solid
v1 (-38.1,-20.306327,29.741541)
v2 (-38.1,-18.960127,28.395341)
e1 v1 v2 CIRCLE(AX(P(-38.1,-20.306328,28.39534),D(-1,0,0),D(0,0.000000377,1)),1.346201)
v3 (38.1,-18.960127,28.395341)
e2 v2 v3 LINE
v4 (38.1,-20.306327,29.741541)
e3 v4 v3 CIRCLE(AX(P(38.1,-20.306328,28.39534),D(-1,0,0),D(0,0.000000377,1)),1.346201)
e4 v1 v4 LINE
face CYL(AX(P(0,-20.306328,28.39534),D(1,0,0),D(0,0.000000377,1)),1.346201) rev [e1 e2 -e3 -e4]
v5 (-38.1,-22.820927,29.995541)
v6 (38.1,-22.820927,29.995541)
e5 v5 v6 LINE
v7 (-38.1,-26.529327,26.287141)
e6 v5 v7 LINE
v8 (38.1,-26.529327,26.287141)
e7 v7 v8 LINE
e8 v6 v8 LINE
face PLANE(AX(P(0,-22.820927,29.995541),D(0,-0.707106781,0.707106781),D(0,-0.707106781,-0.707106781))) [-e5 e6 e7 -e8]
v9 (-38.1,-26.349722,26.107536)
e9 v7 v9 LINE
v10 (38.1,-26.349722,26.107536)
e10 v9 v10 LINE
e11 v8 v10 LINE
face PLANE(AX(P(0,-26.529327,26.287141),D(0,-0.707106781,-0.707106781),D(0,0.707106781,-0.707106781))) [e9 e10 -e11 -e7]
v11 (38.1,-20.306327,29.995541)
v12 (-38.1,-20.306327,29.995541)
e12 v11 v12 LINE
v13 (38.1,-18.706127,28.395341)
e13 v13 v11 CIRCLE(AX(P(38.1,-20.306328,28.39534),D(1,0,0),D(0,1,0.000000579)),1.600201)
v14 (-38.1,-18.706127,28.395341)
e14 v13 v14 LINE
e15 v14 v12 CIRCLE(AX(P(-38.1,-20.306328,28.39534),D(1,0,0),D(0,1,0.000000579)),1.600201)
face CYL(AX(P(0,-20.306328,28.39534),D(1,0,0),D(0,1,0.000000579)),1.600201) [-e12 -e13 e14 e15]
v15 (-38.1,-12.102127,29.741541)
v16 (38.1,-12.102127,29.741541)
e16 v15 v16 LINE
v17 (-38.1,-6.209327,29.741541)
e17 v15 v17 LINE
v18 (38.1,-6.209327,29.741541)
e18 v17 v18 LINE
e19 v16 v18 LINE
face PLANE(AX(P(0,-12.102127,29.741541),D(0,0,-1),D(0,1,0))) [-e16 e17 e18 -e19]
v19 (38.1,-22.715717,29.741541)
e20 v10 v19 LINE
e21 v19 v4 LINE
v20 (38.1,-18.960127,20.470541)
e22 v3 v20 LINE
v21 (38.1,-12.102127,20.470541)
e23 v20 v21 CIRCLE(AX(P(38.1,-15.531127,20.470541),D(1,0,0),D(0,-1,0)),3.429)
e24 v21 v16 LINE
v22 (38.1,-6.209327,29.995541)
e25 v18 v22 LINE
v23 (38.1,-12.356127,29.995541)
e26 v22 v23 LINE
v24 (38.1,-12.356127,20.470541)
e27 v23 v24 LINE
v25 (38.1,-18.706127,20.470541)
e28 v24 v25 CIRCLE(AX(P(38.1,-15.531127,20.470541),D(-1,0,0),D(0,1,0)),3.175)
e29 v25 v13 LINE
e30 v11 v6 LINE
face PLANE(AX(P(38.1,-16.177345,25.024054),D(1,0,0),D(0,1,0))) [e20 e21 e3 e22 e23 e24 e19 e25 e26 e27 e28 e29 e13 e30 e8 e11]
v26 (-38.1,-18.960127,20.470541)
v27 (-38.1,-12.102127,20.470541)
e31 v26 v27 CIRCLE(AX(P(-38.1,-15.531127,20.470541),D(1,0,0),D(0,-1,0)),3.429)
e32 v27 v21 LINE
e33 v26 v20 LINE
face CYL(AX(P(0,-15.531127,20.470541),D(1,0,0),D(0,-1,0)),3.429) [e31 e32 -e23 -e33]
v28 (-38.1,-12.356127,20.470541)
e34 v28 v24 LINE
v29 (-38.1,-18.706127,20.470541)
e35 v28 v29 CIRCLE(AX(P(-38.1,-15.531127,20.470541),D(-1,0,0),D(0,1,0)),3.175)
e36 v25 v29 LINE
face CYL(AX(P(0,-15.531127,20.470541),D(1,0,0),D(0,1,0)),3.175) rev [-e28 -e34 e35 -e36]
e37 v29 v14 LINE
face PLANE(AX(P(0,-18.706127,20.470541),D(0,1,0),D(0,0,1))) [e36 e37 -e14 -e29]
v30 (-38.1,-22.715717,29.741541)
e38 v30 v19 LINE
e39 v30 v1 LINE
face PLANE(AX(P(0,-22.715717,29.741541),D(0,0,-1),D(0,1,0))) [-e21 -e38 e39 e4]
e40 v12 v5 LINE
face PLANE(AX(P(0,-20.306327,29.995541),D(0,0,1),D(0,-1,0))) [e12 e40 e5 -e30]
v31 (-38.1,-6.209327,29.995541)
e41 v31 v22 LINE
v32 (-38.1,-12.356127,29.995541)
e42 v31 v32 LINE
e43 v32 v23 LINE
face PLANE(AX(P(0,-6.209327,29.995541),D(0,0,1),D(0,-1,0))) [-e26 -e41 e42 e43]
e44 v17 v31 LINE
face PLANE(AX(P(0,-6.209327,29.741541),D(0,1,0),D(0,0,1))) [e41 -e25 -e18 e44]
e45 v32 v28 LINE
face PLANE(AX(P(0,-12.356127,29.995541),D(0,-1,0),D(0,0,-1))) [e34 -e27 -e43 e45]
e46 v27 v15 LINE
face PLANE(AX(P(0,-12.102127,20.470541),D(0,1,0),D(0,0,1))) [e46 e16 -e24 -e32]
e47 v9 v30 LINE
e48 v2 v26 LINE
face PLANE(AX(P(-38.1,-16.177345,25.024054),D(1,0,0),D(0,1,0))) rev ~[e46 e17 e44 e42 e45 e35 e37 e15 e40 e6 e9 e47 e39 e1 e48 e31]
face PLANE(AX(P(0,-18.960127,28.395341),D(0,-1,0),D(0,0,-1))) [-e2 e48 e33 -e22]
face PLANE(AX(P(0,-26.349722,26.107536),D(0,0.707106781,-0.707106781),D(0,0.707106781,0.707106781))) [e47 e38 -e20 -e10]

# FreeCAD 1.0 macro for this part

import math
import FreeCAD as App
import Part
import Sketcher

V = App.Vector
Q = App.Units.Quantity

doc = App.newDocument("Part")
body = doc.addObject("PartDesign::Body", "Body")

# Sketch on YZ plane
sketch1 = body.newObject("Sketcher::SketchObject", "Sketch")
sketch1.AttachmentSupport = (doc.getObject("YZ_Plane"), [""])
sketch1.MapMode = "FlatFace"
sketch1.addGeometry(Part.LineSegment(V(-20.31, 30, 0), V(-22.82, 30, 0)), False)
sketch1.addGeometry(Part.LineSegment(V(-22.82, 30, 0), V(-26.53, 26.29, 0)), False)
sketch1.addGeometry(Part.LineSegment(V(-26.53, 26.29, 0), V(-26.35, 26.11, 0)), False)
sketch1.addGeometry(Part.LineSegment(V(-26.35, 26.11, 0), V(-22.72, 29.74, 0)), False)
sketch1.addGeometry(Part.LineSegment(V(-22.72, 29.74, 0), V(-20.31, 29.74, 0)), False)
sketch1.addGeometry(Part.ArcOfCircle(Part.Circle(V(-20.31, 28.4, 0), V(0, 0, 1), 1.35), math.radians(0), math.radians(90)), False)
sketch1.addGeometry(Part.LineSegment(V(-18.96, 28.4, 0), V(-18.96, 20.47, 0)), False)
sketch1.addGeometry(Part.ArcOfCircle(Part.Circle(V(-15.53, 20.47, 0), V(0, 0, 1), 3.43), math.radians(180), math.radians(360)), False)
sketch1.addGeometry(Part.LineSegment(V(-12.1, 20.47, 0), V(-12.1, 29.74, 0)), False)
sketch1.addGeometry(Part.LineSegment(V(-12.1, 29.74, 0), V(-6.21, 29.74, 0)), False)
sketch1.addGeometry(Part.LineSegment(V(-6.21, 29.74, 0), V(-6.21, 30, 0)), False)
sketch1.addGeometry(Part.LineSegment(V(-6.21, 30, 0), V(-12.36, 30, 0)), False)
sketch1.addGeometry(Part.LineSegment(V(-12.36, 30, 0), V(-12.36, 20.47, 0)), False)
sketch1.addGeometry(Part.ArcOfCircle(Part.Circle(V(-15.53, 20.47, 0), V(0, 0, 1), 3.17), math.radians(180), math.radians(360)), False)
sketch1.addGeometry(Part.LineSegment(V(-18.71, 20.47, 0), V(-18.71, 28.4, 0)), False)
sketch1.addGeometry(Part.ArcOfCircle(Part.Circle(V(-20.31, 28.4, 0), V(0, 0, 1), 1.6), math.radians(0), math.radians(90)), False)
sketch1.addConstraint(Sketcher.Constraint("Coincident", 0, 2, 1, 1))
sketch1.addConstraint(Sketcher.Constraint("Coincident", 1, 2, 2, 1))
sketch1.addConstraint(Sketcher.Constraint("Coincident", 2, 2, 3, 1))
sketch1.addConstraint(Sketcher.Constraint("Coincident", 3, 2, 4, 1))
sketch1.addConstraint(Sketcher.Constraint("Tangent", 4, 2, 5, 2))
sketch1.addConstraint(Sketcher.Constraint("Tangent", 5, 1, 6, 1))
sketch1.addConstraint(Sketcher.Constraint("Tangent", 6, 2, 7, 1))
sketch1.addConstraint(Sketcher.Constraint("Tangent", 7, 2, 8, 1))
sketch1.addConstraint(Sketcher.Constraint("Coincident", 8, 2, 9, 1))
sketch1.addConstraint(Sketcher.Constraint("Coincident", 9, 2, 10, 1))
sketch1.addConstraint(Sketcher.Constraint("Coincident", 10, 2, 11, 1))
sketch1.addConstraint(Sketcher.Constraint("Coincident", 11, 2, 12, 1))
sketch1.addConstraint(Sketcher.Constraint("Tangent", 12, 2, 13, 2))
sketch1.addConstraint(Sketcher.Constraint("Tangent", 13, 1, 14, 1))
sketch1.addConstraint(Sketcher.Constraint("Tangent", 14, 2, 15, 1))
sketch1.addConstraint(Sketcher.Constraint("Tangent", 15, 2, 0, 1))
sketch1.addConstraint(Sketcher.Constraint("Horizontal", 0))
sketch1.addConstraint(Sketcher.Constraint("Horizontal", 4))
sketch1.addConstraint(Sketcher.Constraint("Vertical", 6))
sketch1.addConstraint(Sketcher.Constraint("Vertical", 8))
sketch1.addConstraint(Sketcher.Constraint("Horizontal", 9))
sketch1.addConstraint(Sketcher.Constraint("Vertical", 10))
sketch1.addConstraint(Sketcher.Constraint("Horizontal", 11))
sketch1.addConstraint(Sketcher.Constraint("Vertical", 12))
sketch1.addConstraint(Sketcher.Constraint("Vertical", 14))
sketch1.addConstraint(Sketcher.Constraint("Coincident", 13, 3, 7, 3))
sketch1.addConstraint(Sketcher.Constraint("Coincident", 15, 3, 5, 3))
sketch1.addConstraint(Sketcher.Constraint("Perpendicular", 1, 2))
sketch1.addConstraint(Sketcher.Constraint("Perpendicular", 2, 3))
sketch1.addConstraint(Sketcher.Constraint("Horizontal", 4, 2, 8, 2))
sketch1.addConstraint(Sketcher.Constraint("Horizontal", 0, 2, 10, 2))
sketch1.addConstraint(Sketcher.Constraint("Angle", 1, Q("-135 deg")))
sketch1.addConstraint(Sketcher.Constraint("Radius", 5, Q("0.053 in")))
sketch1.addConstraint(Sketcher.Constraint("Radius", 7, Q("0.135 in")))
sketch1.addConstraint(Sketcher.Constraint("Radius", 13, Q("0.125 in")))
sketch1.addConstraint(Sketcher.Constraint("Distance", 2, Q("0.01 in")))
sketch1.addConstraint(Sketcher.Constraint("DistanceX", 0, 2, 0, 1, Q("0.099 in")))
sketch1.addConstraint(Sketcher.Constraint("DistanceX", 9, 1, 9, 2, Q("0.232 in")))
sketch1.addConstraint(Sketcher.Constraint("DistanceY", 6, 2, 6, 1, Q("0.312 in")))
sketch1.addConstraint(Sketcher.Constraint("DistanceX", 1, 2, 0, 2, Q("0.146 in")))
sketch1.addConstraint(Sketcher.Constraint("DistanceY", -1, 1, 5, 3, Q("28.39534 mm")))
sketch1.addConstraint(Sketcher.Constraint("DistanceX", 2, 2, -1, 1, Q("26.349722 mm")))
pad1 = body.newObject("PartDesign::Pad", "Pad")
pad1.Profile = sketch1
pad1.Length = Q("3 in")
pad1.Midplane = True

doc.recompute()
